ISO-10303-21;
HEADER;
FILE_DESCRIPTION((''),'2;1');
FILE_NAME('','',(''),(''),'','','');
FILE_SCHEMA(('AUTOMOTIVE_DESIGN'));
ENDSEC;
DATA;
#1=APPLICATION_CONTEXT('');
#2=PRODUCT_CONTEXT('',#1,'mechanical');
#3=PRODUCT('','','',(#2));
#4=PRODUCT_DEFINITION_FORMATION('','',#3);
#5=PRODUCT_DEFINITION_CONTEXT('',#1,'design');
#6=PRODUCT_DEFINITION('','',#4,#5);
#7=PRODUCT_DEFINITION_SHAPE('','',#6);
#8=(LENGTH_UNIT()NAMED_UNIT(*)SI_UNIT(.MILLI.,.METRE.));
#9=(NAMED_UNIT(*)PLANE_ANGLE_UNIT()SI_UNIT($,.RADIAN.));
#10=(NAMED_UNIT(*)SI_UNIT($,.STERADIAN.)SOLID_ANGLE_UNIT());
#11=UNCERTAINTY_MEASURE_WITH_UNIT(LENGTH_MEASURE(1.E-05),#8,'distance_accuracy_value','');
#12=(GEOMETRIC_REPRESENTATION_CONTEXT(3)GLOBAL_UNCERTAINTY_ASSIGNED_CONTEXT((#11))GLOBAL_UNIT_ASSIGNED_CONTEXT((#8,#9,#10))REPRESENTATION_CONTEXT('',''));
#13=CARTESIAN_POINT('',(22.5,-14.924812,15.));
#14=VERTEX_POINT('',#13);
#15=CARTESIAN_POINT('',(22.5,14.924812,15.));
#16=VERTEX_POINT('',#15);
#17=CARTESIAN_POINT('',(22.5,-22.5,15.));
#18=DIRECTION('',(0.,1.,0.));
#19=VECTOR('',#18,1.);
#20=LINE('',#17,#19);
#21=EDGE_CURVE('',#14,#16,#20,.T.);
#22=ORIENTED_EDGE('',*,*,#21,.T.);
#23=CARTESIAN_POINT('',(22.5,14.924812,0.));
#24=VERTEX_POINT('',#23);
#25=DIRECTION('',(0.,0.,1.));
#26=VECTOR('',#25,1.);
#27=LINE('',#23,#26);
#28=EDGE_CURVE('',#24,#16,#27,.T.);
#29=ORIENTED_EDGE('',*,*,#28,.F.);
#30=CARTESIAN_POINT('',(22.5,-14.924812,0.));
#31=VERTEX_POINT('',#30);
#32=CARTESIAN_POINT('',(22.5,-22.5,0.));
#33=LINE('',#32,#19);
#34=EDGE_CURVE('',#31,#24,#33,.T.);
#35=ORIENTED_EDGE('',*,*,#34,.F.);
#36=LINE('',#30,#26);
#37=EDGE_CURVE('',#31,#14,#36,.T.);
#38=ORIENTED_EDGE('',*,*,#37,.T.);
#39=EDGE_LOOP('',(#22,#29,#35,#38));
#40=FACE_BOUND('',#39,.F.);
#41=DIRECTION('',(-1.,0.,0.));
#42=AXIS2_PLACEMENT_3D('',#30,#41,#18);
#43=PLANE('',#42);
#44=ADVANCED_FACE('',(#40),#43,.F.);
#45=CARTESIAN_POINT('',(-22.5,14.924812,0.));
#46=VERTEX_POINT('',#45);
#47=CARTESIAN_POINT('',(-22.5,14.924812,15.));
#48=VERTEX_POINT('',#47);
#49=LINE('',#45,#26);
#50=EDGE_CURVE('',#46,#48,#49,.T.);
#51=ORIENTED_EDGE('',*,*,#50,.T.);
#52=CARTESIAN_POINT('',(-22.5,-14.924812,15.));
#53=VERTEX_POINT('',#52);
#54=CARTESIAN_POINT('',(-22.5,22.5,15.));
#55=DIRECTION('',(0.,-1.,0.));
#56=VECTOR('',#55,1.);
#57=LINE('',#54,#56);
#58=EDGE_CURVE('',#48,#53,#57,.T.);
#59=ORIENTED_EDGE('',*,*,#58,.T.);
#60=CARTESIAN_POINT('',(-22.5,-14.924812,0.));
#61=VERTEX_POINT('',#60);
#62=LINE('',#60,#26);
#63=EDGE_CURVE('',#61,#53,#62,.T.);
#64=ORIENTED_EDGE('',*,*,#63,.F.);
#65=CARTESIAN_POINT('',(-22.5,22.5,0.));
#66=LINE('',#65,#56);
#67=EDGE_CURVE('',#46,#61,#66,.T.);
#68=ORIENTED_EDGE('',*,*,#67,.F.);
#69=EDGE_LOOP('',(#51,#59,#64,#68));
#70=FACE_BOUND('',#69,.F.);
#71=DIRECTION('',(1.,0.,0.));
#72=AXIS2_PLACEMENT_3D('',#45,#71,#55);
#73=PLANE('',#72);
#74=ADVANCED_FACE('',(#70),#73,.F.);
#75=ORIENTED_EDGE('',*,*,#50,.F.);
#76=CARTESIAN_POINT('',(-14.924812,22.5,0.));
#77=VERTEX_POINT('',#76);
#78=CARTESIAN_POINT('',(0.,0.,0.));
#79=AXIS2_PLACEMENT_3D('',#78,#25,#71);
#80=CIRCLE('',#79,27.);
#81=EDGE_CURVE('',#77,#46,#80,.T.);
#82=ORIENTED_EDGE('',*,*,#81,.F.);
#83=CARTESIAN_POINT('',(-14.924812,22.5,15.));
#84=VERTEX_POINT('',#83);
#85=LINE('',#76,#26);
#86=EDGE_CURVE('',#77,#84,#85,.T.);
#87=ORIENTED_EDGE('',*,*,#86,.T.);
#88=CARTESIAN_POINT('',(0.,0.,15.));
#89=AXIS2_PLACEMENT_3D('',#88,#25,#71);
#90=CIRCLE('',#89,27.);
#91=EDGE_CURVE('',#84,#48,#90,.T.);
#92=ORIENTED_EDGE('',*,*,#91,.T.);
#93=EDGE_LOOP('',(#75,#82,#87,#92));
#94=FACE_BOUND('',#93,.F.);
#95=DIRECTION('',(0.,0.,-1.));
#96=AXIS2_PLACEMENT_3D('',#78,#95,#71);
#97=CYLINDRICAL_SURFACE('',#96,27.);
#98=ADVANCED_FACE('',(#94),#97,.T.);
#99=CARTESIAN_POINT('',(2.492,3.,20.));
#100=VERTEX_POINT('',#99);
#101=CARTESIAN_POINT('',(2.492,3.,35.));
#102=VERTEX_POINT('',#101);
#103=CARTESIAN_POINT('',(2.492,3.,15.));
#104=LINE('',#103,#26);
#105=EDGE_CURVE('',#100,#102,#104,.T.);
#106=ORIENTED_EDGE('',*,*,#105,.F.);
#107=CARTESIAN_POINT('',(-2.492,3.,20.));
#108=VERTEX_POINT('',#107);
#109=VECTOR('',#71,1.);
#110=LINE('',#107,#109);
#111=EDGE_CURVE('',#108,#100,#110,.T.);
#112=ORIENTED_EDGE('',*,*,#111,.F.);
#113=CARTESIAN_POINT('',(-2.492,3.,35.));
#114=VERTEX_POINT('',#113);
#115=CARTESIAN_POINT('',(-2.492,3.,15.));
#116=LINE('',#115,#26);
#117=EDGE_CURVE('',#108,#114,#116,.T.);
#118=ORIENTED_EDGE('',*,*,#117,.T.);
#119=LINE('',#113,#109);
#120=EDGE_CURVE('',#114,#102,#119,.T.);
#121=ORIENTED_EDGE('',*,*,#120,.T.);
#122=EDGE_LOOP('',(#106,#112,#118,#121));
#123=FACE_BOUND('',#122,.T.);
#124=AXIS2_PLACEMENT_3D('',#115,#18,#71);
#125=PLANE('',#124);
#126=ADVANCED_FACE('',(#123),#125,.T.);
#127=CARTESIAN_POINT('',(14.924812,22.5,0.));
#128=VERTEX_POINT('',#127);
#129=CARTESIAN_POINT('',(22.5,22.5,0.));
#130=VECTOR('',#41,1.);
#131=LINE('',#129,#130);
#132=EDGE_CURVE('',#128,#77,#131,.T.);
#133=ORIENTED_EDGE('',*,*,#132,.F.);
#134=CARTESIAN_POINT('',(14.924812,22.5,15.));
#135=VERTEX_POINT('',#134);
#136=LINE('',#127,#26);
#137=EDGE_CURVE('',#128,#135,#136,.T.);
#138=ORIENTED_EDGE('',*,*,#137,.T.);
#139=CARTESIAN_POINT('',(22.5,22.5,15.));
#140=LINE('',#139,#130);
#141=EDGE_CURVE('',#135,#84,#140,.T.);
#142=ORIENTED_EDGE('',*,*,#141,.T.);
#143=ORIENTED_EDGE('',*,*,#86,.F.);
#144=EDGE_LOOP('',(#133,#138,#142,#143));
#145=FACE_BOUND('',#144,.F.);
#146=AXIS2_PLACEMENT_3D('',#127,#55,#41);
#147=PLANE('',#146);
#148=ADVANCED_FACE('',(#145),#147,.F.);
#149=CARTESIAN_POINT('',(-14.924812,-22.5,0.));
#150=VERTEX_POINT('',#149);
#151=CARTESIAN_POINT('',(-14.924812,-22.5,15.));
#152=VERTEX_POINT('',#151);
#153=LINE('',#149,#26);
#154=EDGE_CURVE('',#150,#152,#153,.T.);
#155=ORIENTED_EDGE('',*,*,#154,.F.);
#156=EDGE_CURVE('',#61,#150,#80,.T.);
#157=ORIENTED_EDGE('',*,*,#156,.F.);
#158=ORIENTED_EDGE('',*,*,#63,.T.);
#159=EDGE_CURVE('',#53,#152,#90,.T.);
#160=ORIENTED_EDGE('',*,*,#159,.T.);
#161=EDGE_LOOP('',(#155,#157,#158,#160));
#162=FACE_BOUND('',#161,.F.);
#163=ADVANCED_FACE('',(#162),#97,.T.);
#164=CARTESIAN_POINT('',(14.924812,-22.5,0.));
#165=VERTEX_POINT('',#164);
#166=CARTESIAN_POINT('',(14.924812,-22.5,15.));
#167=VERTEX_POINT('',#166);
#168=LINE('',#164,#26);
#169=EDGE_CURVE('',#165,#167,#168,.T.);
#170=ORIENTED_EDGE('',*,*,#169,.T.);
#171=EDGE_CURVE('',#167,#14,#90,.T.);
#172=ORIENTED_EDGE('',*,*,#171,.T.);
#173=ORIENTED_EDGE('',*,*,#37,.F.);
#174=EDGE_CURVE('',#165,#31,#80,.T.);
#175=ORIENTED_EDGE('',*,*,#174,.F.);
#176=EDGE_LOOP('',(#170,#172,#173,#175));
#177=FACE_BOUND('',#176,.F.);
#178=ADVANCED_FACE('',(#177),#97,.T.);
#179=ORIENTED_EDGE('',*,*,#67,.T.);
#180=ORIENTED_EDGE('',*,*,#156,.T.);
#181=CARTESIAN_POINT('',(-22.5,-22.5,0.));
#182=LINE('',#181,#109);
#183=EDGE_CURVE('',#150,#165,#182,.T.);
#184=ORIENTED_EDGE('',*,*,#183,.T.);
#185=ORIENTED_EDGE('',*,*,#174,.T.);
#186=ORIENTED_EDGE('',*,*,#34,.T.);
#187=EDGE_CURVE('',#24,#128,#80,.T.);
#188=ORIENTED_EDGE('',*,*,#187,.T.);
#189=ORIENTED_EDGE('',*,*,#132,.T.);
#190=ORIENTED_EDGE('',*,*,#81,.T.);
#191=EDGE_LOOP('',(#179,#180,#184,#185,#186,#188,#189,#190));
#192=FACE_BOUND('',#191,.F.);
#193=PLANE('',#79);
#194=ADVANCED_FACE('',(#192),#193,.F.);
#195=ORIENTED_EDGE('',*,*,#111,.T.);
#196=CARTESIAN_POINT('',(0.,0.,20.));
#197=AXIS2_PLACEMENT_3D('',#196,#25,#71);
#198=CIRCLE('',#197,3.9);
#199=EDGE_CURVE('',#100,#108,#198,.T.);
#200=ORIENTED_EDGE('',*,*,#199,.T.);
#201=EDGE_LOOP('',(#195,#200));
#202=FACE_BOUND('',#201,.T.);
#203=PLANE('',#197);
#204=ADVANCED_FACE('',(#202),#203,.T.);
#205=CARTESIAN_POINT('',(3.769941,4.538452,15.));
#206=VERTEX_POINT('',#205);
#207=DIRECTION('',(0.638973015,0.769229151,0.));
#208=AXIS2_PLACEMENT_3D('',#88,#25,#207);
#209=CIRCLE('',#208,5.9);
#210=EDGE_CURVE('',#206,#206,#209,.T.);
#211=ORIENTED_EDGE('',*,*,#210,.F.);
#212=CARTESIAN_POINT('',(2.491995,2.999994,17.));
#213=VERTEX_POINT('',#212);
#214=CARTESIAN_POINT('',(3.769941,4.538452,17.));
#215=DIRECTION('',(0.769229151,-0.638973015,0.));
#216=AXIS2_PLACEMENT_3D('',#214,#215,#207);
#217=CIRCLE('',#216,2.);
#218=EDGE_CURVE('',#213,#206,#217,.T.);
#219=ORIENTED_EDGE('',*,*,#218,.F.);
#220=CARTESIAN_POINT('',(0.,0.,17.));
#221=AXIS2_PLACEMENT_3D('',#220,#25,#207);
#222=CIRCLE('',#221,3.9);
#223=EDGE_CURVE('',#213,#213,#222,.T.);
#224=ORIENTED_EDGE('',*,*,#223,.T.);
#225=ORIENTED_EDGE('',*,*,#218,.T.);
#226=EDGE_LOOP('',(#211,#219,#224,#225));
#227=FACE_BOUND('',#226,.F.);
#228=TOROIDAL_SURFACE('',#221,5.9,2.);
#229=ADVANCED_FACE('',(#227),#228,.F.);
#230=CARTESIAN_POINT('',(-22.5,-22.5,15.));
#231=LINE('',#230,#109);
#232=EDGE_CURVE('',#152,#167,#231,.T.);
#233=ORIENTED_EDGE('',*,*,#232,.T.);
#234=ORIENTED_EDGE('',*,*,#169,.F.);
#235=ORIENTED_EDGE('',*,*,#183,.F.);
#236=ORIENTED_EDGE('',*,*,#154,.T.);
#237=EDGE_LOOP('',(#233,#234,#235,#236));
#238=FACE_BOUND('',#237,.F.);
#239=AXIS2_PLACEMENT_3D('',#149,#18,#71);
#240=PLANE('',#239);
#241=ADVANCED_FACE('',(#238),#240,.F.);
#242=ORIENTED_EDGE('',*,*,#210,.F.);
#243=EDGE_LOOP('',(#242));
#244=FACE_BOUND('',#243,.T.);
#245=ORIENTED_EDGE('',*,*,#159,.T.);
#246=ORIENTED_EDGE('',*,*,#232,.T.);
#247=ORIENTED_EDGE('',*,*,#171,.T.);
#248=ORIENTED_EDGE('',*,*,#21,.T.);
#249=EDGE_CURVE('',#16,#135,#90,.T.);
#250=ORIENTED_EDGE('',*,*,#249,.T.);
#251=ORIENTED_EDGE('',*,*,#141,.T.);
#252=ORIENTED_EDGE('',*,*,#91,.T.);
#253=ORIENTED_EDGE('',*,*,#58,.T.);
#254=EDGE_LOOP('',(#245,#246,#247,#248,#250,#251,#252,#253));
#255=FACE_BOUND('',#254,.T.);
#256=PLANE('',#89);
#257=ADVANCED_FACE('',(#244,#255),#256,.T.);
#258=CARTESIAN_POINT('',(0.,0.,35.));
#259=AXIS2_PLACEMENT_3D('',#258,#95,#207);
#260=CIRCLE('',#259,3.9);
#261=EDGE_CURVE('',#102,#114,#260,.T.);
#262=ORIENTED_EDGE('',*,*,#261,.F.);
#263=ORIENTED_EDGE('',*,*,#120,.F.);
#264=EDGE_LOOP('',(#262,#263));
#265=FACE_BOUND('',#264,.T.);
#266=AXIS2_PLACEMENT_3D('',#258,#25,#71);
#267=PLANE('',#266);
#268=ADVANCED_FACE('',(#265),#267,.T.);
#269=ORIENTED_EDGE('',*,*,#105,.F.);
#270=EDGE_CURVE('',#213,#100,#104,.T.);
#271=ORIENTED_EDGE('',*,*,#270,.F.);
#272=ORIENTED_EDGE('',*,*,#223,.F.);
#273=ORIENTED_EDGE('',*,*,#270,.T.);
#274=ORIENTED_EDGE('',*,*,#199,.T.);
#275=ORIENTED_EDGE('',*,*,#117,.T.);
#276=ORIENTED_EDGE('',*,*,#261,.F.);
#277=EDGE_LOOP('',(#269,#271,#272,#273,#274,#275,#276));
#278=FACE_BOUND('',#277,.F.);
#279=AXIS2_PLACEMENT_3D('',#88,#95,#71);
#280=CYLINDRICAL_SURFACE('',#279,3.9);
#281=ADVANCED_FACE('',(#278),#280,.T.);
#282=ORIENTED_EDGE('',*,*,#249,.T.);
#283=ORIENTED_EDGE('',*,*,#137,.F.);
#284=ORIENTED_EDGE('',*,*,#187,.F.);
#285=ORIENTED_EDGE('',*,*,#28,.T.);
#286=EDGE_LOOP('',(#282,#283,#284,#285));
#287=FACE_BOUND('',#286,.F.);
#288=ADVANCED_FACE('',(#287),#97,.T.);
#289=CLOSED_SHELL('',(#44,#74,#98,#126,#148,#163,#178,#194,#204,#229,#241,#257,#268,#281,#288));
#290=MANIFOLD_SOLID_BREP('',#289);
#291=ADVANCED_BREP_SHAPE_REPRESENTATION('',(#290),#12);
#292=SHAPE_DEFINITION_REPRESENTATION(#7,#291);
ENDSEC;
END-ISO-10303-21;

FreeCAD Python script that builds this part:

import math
import FreeCAD as App
import Part
import Sketcher
Q = App.Units.Quantity


def edges_at(feature, points):
    """Names of the edges that pass closest to the given points."""
    edges = feature.Shape.Edges
    near = lambda p: min(range(len(edges)), key=lambda i: edges[i].distToShape(Part.Vertex(*p))[0])
    return sorted({f"Edge{near(p) + 1}" for p in points})

doc = App.newDocument("Part")
body = doc.addObject("PartDesign::Body", "Body")

sketch1 = body.newObject("Sketcher::SketchObject", "Sketch")
sketch1.AttachmentSupport = (doc.getObject("XY_Plane"), [""])
sketch1.MapMode = "FlatFace"
sketch1.addGeometry([
    Part.LineSegment(App.Vector(22, -15, 0), App.Vector(22, 15, 0)),
    Part.ArcOfCircle(Part.Circle(App.Vector(0, 0, 0), App.Vector(0, 0, 1), 27), math.radians(34), math.radians(56)),
    Part.LineSegment(App.Vector(15, 22, 0), App.Vector(-15, 22, 0)),
    Part.ArcOfCircle(Part.Circle(App.Vector(0, 0, 0), App.Vector(0, 0, 1), 27), math.radians(124), math.radians(146)),
    Part.LineSegment(App.Vector(-22, 15, 0), App.Vector(-22, -15, 0)),
    Part.ArcOfCircle(Part.Circle(App.Vector(0, 0, 0), App.Vector(0, 0, 1), 27), math.radians(-146), math.radians(-124)),
    Part.LineSegment(App.Vector(-15, -22, 0), App.Vector(15, -22, 0)),
    Part.ArcOfCircle(Part.Circle(App.Vector(0, 0, 0), App.Vector(0, 0, 1), 27), math.radians(-56), math.radians(-34)),
], False)
sketch1.addConstraint([
    Sketcher.Constraint("Coincident", 0, 2, 1, 1),
    Sketcher.Constraint("Coincident", 1, 2, 2, 1),
    Sketcher.Constraint("Coincident", 2, 2, 3, 1),
    Sketcher.Constraint("Coincident", 3, 2, 4, 1),
    Sketcher.Constraint("Coincident", 4, 2, 5, 1),
    Sketcher.Constraint("Coincident", 5, 2, 6, 1),
    Sketcher.Constraint("Coincident", 6, 2, 7, 1),
    Sketcher.Constraint("Coincident", 7, 2, 0, 1),
    Sketcher.Constraint("Vertical", 0),
    Sketcher.Constraint("Horizontal", 2),
    Sketcher.Constraint("Vertical", 4),
    Sketcher.Constraint("Horizontal", 6),
    Sketcher.Constraint("Coincident", 1, 3, -1, 1),
    Sketcher.Constraint("Coincident", 3, 3, -1, 1),
    Sketcher.Constraint("Coincident", 5, 3, -1, 1),
    Sketcher.Constraint("Coincident", 7, 3, -1, 1),
    Sketcher.Constraint("Equal", 1, 3),
    Sketcher.Constraint("Equal", 3, 5),
    Sketcher.Constraint("Equal", 5, 7),
    Sketcher.Constraint("Horizontal", 0, 2, 3, 2),
    Sketcher.Constraint("Vertical", 2, 2, 5, 2),
    Sketcher.Constraint("Equal", 6, 0),
    Sketcher.Constraint("Radius", 1, Q("27 mm")),
    Sketcher.Constraint("DistanceX", -1, 1, 0, 2, Q("22.5 mm")),
])
pad1 = body.newObject("PartDesign::Pad", "Pad")
pad1.Profile = sketch1
pad1.Length = 15

sketch2 = body.newObject("Sketcher::SketchObject", "Sketch001")
sketch2.AttachmentSupport = (doc.getObject("XY_Plane"), [""])
sketch2.MapMode = "FlatFace"
sketch2.AttachmentOffset = App.Placement(App.Vector(0, 0, 15), App.Rotation())
sketch2.addGeometry([
    Part.ArcOfCircle(Part.Circle(App.Vector(0, 0, 0), App.Vector(0, 0, 1), 3.9), math.radians(130), math.radians(410)),
    Part.LineSegment(App.Vector(-2.5, 3, 0), App.Vector(2.5, 3, 0)),
], False)
sketch2.addConstraint([
    Sketcher.Constraint("Coincident", 0, 1, 1, 1),
    Sketcher.Constraint("Coincident", 1, 2, 0, 2),
    Sketcher.Constraint("Horizontal", 1),
    Sketcher.Constraint("Coincident", 0, 3, -1, 1),
    Sketcher.Constraint("Radius", 0, Q("3.9 mm")),
    Sketcher.Constraint("DistanceY", -1, 1, 0, 1, Q("3 mm")),
])
pad2 = body.newObject("PartDesign::Pad", "Pad001")
pad2.Profile = sketch2
pad2.Length = 20

sketch3 = body.newObject("Sketcher::SketchObject", "Sketch002")
sketch3.AttachmentSupport = (doc.getObject("XY_Plane"), [""])
sketch3.MapMode = "FlatFace"
sketch3.AttachmentOffset = App.Placement(App.Vector(0, 0, 15), App.Rotation())
sketch3.addGeometry([
    Part.LineSegment(App.Vector(-2.5, 3, 0), App.Vector(2.5, 3, 0)),
    Part.ArcOfCircle(Part.Circle(App.Vector(0, 0, 0), App.Vector(0, 0, 1), 3.9), math.radians(50), math.radians(130)),
], False)
sketch3.addConstraint([
    Sketcher.Constraint("Coincident", 0, 1, 1, 2),
    Sketcher.Constraint("Coincident", 1, 1, 0, 2),
    Sketcher.Constraint("Horizontal", 0),
    Sketcher.Constraint("Coincident", 1, 3, -1, 1),
    Sketcher.Constraint("Radius", 1, Q("3.9 mm")),
    Sketcher.Constraint("DistanceY", -1, 1, 0, 1, Q("3 mm")),
])
pad3 = body.newObject("PartDesign::Pad", "Pad002")
pad3.Profile = sketch3
pad3.Length = 5
doc.recompute()

fillet = body.newObject("PartDesign::Fillet", "Fillet")
fillet.Base = (pad3, edges_at(pad3, [(-2.492, -3, 15)]))
fillet.Radius = 2

doc.recompute()
